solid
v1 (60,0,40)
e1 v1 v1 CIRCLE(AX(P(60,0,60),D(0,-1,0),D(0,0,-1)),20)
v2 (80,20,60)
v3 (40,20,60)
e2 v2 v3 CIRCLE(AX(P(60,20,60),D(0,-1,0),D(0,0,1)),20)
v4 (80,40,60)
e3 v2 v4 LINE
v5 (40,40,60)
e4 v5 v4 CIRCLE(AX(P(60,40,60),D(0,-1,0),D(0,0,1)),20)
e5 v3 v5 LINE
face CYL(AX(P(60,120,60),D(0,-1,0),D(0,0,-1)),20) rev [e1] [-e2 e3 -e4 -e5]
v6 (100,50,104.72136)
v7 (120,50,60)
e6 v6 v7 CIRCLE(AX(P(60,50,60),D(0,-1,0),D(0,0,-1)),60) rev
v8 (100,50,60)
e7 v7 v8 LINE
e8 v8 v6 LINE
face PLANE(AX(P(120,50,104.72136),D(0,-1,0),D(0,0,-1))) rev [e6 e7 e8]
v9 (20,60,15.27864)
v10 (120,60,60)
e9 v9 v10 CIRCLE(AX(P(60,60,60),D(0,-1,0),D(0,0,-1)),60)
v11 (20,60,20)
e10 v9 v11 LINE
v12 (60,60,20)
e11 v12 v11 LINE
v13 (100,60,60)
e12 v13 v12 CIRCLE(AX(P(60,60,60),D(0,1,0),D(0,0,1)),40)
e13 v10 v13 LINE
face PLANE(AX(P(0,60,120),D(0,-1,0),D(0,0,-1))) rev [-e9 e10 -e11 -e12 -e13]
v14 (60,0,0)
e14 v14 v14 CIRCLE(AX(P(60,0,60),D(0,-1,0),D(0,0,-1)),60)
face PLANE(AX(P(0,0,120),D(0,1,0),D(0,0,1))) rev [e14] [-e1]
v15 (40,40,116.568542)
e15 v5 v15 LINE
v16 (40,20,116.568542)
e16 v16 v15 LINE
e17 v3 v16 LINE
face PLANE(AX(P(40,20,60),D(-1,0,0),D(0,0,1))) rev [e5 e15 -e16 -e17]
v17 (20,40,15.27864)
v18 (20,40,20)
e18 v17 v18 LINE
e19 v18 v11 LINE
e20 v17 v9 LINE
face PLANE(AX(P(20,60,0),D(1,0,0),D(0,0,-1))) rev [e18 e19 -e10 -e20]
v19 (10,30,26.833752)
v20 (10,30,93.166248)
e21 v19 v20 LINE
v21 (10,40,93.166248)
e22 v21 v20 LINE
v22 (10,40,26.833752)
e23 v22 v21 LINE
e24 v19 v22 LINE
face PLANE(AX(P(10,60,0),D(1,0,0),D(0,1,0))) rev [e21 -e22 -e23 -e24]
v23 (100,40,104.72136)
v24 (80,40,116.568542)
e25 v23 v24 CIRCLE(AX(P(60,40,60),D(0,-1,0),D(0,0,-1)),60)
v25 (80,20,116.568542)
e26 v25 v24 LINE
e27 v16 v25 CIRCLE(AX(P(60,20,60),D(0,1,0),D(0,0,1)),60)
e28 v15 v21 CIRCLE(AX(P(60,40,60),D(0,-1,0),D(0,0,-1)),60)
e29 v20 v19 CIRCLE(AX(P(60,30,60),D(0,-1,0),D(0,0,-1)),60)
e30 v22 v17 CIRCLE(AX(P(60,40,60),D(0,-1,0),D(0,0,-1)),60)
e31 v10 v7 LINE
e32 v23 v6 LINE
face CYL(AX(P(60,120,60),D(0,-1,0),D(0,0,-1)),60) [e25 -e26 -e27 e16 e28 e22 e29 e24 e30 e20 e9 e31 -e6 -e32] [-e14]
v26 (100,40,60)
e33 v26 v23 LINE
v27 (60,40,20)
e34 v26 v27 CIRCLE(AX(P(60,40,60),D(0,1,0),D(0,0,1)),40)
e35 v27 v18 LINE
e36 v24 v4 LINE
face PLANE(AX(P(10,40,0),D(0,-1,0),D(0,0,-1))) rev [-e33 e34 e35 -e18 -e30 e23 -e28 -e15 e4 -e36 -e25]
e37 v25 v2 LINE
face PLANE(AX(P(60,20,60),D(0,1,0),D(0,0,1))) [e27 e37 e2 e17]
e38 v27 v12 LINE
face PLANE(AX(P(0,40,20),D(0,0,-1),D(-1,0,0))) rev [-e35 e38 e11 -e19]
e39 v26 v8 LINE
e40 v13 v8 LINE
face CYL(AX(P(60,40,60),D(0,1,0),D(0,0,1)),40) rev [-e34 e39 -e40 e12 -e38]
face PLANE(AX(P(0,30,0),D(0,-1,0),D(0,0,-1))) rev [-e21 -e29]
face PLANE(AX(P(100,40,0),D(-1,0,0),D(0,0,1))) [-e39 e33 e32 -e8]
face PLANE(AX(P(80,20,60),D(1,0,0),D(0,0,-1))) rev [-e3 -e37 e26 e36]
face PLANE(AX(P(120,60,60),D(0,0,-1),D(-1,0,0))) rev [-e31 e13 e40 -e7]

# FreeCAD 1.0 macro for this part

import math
import FreeCAD as App
import Part
import Sketcher
from FreeCAD import Vector
Q = App.Units.Quantity


def add_polygon(sketch, points):
    """Adds a closed chain of lines whose ends are joined by coincident constraints."""
    first, n = sketch.GeometryCount, len(points)
    for a, b in zip(points, points[1:] + points[:1]):
        sketch.addGeometry(Part.LineSegment(App.Vector(*a, 0), App.Vector(*b, 0)), False)
    for i in range(n):
        sketch.addConstraint(Sketcher.Constraint("Coincident", first + i, 2, first + (i + 1) % n, 1))

doc = App.newDocument("Part")
body = doc.addObject("PartDesign::Body", "Body")

# Sketch on XY plane
sketch1 = body.newObject("Sketcher::SketchObject", "Sketch")
sketch1.AttachmentSupport = (doc.getObject("XY_Plane"), [""])
sketch1.MapMode = "FlatFace"
add_polygon(sketch1, [(0, 60), (0, 0), (120, 0), (120, 60)])  # lines 0-3
sketch1.addConstraint(Sketcher.Constraint("Vertical", 0))
sketch1.addConstraint(Sketcher.Constraint("Horizontal", 1))
sketch1.addConstraint(Sketcher.Constraint("Vertical", 2))
sketch1.addConstraint(Sketcher.Constraint("Horizontal", 3))
sketch1.addConstraint(Sketcher.Constraint("Coincident", 0, 2, -1, 1))
sketch1.addConstraint(Sketcher.Constraint("DistanceX", 1, 1, 1, 2, Q("120 mm")))
sketch1.addConstraint(Sketcher.Constraint("DistanceY", 0, 2, 0, 1, Q("60 mm")))
pad1 = body.newObject("PartDesign::Pad", "Pad")
pad1.Profile = sketch1
pad1.Length = 120

# Sketch on XY plane
sketch2 = body.newObject("Sketcher::SketchObject", "Sketch001")
sketch2.AttachmentSupport = (doc.getObject("XY_Plane"), [""])
sketch2.MapMode = "FlatFace"
sketch2.AttachmentOffset = App.Placement(Vector(0, 0, 120), App.Rotation())
add_polygon(sketch2, [(0, 60), (0, 30), (10, 30), (10, 60)])  # lines 0-3
sketch2.addConstraint(Sketcher.Constraint("Vertical", 0))
sketch2.addConstraint(Sketcher.Constraint("Horizontal", 1))
sketch2.addConstraint(Sketcher.Constraint("Vertical", 2))
sketch2.addConstraint(Sketcher.Constraint("Horizontal", 3))
sketch2.addConstraint(Sketcher.Constraint("PointOnObject", 0, 2, -2))
sketch2.addConstraint(Sketcher.Constraint("DistanceX", 1, 1, 1, 2, Q("10 mm")))
sketch2.addConstraint(Sketcher.Constraint("DistanceY", 0, 2, 0, 1, Q("30 mm")))
sketch2.addConstraint(Sketcher.Constraint("DistanceY", -1, 1, 0, 2, Q("30 mm")))
pocket1 = body.newObject("PartDesign::Pocket", "Pocket")
pocket1.Profile = sketch2
pocket1.Length = 120

# Sketch on XY plane
sketch3 = body.newObject("Sketcher::SketchObject", "Sketch002")
sketch3.AttachmentSupport = (doc.getObject("XY_Plane"), [""])
sketch3.MapMode = "FlatFace"
sketch3.AttachmentOffset = App.Placement(Vector(0, 0, 120), App.Rotation())
add_polygon(sketch3, [(10, 60), (10, 40), (20, 40), (20, 60)])  # lines 0-3
sketch3.addConstraint(Sketcher.Constraint("Vertical", 0))
sketch3.addConstraint(Sketcher.Constraint("Horizontal", 1))
sketch3.addConstraint(Sketcher.Constraint("Vertical", 2))
sketch3.addConstraint(Sketcher.Constraint("Horizontal", 3))
sketch3.addConstraint(Sketcher.Constraint("DistanceX", 1, 1, 1, 2, Q("10 mm")))
sketch3.addConstraint(Sketcher.Constraint("DistanceY", 0, 2, 0, 1, Q("20 mm")))
sketch3.addConstraint(Sketcher.Constraint("DistanceX", -1, 1, 0, 2, Q("10 mm")))
sketch3.addConstraint(Sketcher.Constraint("DistanceY", -1, 1, 0, 2, Q("40 mm")))
pocket2 = body.newObject("PartDesign::Pocket", "Pocket001")
pocket2.Profile = sketch3
pocket2.Length = 120

# Sketch on XZ plane
sketch4 = body.newObject("Sketcher::SketchObject", "Sketch003")
sketch4.AttachmentSupport = (doc.getObject("XZ_Plane"), [""])
sketch4.MapMode = "FlatFace"
sketch4.addGeometry(Part.LineSegment(Vector(60, 120, 0), Vector(0, 120, 0)), False)
sketch4.addGeometry(Part.LineSegment(Vector(0, 120, 0), Vector(0, 60, 0)), False)
sketch4.addGeometry(Part.ArcOfCircle(Part.Circle(Vector(60, 60, 0), Vector(0, 0, 1), 60), math.radians(90), math.radians(180)), False)
sketch4.addGeometry(Part.LineSegment(Vector(120, 120, 0), Vector(60, 120, 0)), False)
sketch4.addGeometry(Part.ArcOfCircle(Part.Circle(Vector(60, 60, 0), Vector(0, 0, 1), 60), math.radians(0), math.radians(90)), False)
sketch4.addGeometry(Part.LineSegment(Vector(120, 60, 0), Vector(120, 120, 0)), False)
sketch4.addGeometry(Part.ArcOfCircle(Part.Circle(Vector(60, 60, 0), Vector(0, 0, 1), 60), math.radians(-90), math.radians(0)), False)
sketch4.addGeometry(Part.LineSegment(Vector(60, 0, 0), Vector(120, 0, 0)), False)
sketch4.addGeometry(Part.LineSegment(Vector(120, 0, 0), Vector(120, 60, 0)), False)
sketch4.addGeometry(Part.ArcOfCircle(Part.Circle(Vector(60, 60, 0), Vector(0, 0, 1), 60), math.radians(-180), math.radians(-90)), False)
sketch4.addGeometry(Part.LineSegment(Vector(0, 60, 0), Vector(0, 0, 0)), False)
sketch4.addGeometry(Part.LineSegment(Vector(0, 0, 0), Vector(60, 0, 0)), False)
sketch4.addConstraint(Sketcher.Constraint("Coincident", 0, 2, 1, 1))
sketch4.addConstraint(Sketcher.Constraint("Tangent", 1, 2, 2, 2))
sketch4.addConstraint(Sketcher.Constraint("Tangent", 2, 1, 0, 1))
sketch4.addConstraint(Sketcher.Constraint("Tangent", 3, 2, 4, 2))
sketch4.addConstraint(Sketcher.Constraint("Tangent", 4, 1, 5, 1))
sketch4.addConstraint(Sketcher.Constraint("Coincident", 5, 2, 3, 1))
sketch4.addConstraint(Sketcher.Constraint("Tangent", 6, 1, 7, 1))
sketch4.addConstraint(Sketcher.Constraint("Coincident", 7, 2, 8, 1))
sketch4.addConstraint(Sketcher.Constraint("Tangent", 8, 2, 6, 2))
sketch4.addConstraint(Sketcher.Constraint("Tangent", 9, 1, 10, 1))
sketch4.addConstraint(Sketcher.Constraint("Coincident", 10, 2, 11, 1))
sketch4.addConstraint(Sketcher.Constraint("Tangent", 11, 2, 9, 2))
sketch4.addConstraint(Sketcher.Constraint("Horizontal", 0))
sketch4.addConstraint(Sketcher.Constraint("Vertical", 1))
sketch4.addConstraint(Sketcher.Constraint("Horizontal", 3))
sketch4.addConstraint(Sketcher.Constraint("Vertical", 5))
sketch4.addConstraint(Sketcher.Constraint("Horizontal", 7))
sketch4.addConstraint(Sketcher.Constraint("Vertical", 8))
sketch4.addConstraint(Sketcher.Constraint("Vertical", 10))
sketch4.addConstraint(Sketcher.Constraint("Horizontal", 11))
sketch4.addConstraint(Sketcher.Constraint("Coincident", 10, 2, -1, 1))
sketch4.addConstraint(Sketcher.Constraint("Coincident", 4, 3, 2, 3))
sketch4.addConstraint(Sketcher.Constraint("Coincident", 6, 3, 2, 3))
sketch4.addConstraint(Sketcher.Constraint("Coincident", 9, 3, 2, 3))
sketch4.addConstraint(Sketcher.Constraint("Equal", 2, 4))
sketch4.addConstraint(Sketcher.Constraint("Equal", 4, 6))
sketch4.addConstraint(Sketcher.Constraint("Equal", 6, 9))
sketch4.addConstraint(Sketcher.Constraint("Radius", 2, Q("60 mm")))
pocket3 = body.newObject("PartDesign::Pocket", "Pocket002")
pocket3.Profile = sketch4
pocket3.Length = 120

# Sketch on XZ plane
sketch5 = body.newObject("Sketcher::SketchObject", "Sketch004")
sketch5.AttachmentSupport = (doc.getObject("XZ_Plane"), [""])
sketch5.MapMode = "FlatFace"
sketch5.addGeometry(Part.Circle(Vector(60, 60, 0), Vector(0, 0, 1), 20), False)
sketch5.addConstraint(Sketcher.Constraint("Diameter", 0, Q("40 mm")))
sketch5.addConstraint(Sketcher.Constraint("DistanceX", -1, 1, 0, 3, Q("60 mm")))
sketch5.addConstraint(Sketcher.Constraint("DistanceY", -1, 1, 0, 3, Q("60 mm")))
pocket4 = body.newObject("PartDesign::Pocket", "Pocket003")
pocket4.Profile = sketch5
pocket4.Length = 120

# Sketch on XZ plane
sketch6 = body.newObject("Sketcher::SketchObject", "Sketch005")
sketch6.AttachmentSupport = (doc.getObject("XZ_Plane"), [""])
sketch6.MapMode = "FlatFace"
sketch6.AttachmentOffset = App.Placement(Vector(0, 0, -60), App.Rotation())
sketch6.addGeometry(Part.LineSegment(Vector(40, 60, 0), Vector(40, 116.568542, 0)), False)
sketch6.addGeometry(Part.ArcOfCircle(Part.Circle(Vector(60, 60, 0), Vector(0, 0, 1), 60), math.radians(70.528779), math.radians(109.471221)), False)
sketch6.addGeometry(Part.LineSegment(Vector(80, 116.568542, 0), Vector(80, 60, 0)), False)
sketch6.addGeometry(Part.ArcOfCircle(Part.Circle(Vector(60, 60, 0), Vector(0, 0, 1), 20), math.radians(0), math.radians(180)), False)
sketch6.addConstraint(Sketcher.Constraint("Coincident", 0, 2, 1, 2))
sketch6.addConstraint(Sketcher.Constraint("Coincident", 1, 1, 2, 1))
sketch6.addConstraint(Sketcher.Constraint("Tangent", 2, 2, 3, 1))
sketch6.addConstraint(Sketcher.Constraint("Tangent", 3, 2, 0, 1))
sketch6.addConstraint(Sketcher.Constraint("Vertical", 0))
sketch6.addConstraint(Sketcher.Constraint("Vertical", 2))
sketch6.addConstraint(Sketcher.Constraint("Coincident", 3, 3, 1, 3))
sketch6.addConstraint(Sketcher.Constraint("Radius", 1, Q("60 mm")))
sketch6.addConstraint(Sketcher.Constraint("Radius", 3, Q("20 mm")))
sketch6.addConstraint(Sketcher.Constraint("DistanceX", -1, 1, 1, 3, Q("60 mm")))
sketch6.addConstraint(Sketcher.Constraint("DistanceY", -1, 1, 1, 3, Q("60 mm")))
pocket5 = body.newObject("PartDesign::Pocket", "Pocket004")
pocket5.Profile = sketch6
pocket5.Length = 20
pocket5.Reversed = True

# Sketch on XZ plane
sketch7 = body.newObject("Sketcher::SketchObject", "Sketch006")
sketch7.AttachmentSupport = (doc.getObject("XZ_Plane"), [""])
sketch7.MapMode = "FlatFace"
sketch7.AttachmentOffset = App.Placement(Vector(0, 0, -60), App.Rotation())
sketch7.addGeometry(Part.ArcOfCircle(Part.Circle(Vector(60, 60, 0), Vector(0, 0, 1), 40), math.radians(-90), math.radians(0)), False)
sketch7.addGeometry(Part.LineSegment(Vector(60, 20, 0), Vector(20, 20, 0)), False)
sketch7.addGeometry(Part.LineSegment(Vector(20, 20, 0), Vector(20, 104.72136, 0)), False)
sketch7.addGeometry(Part.ArcOfCircle(Part.Circle(Vector(60, 60, 0), Vector(0, 0, 1), 60), math.radians(109.471221), math.radians(131.810315)), False)
sketch7.addGeometry(Part.LineSegment(Vector(40, 116.568542, 0), Vector(40, 60, 0)), False)
sketch7.addGeometry(Part.ArcOfCircle(Part.Circle(Vector(60, 60, 0), Vector(0, 0, 1), 20), math.radians(180), math.radians(360)), False)
sketch7.addGeometry(Part.LineSegment(Vector(80, 60, 0), Vector(80, 116.568542, 0)), False)
sketch7.addGeometry(Part.ArcOfCircle(Part.Circle(Vector(60, 60, 0), Vector(0, 0, 1), 60), math.radians(48.189685), math.radians(70.528779)), False)
sketch7.addGeometry(Part.LineSegment(Vector(100, 104.72136, 0), Vector(100, 60, 0)), False)
sketch7.addConstraint(Sketcher.Constraint("Tangent", 0, 1, 1, 1))
sketch7.addConstraint(Sketcher.Constraint("Coincident", 1, 2, 2, 1))
sketch7.addConstraint(Sketcher.Constraint("Coincident", 2, 2, 3, 2))
sketch7.addConstraint(Sketcher.Constraint("Coincident", 3, 1, 4, 1))
sketch7.addConstraint(Sketcher.Constraint("Tangent", 4, 2, 5, 1))
sketch7.addConstraint(Sketcher.Constraint("Tangent", 5, 2, 6, 1))
sketch7.addConstraint(Sketcher.Constraint("Coincident", 6, 2, 7, 2))
sketch7.addConstraint(Sketcher.Constraint("Coincident", 7, 1, 8, 1))
sketch7.addConstraint(Sketcher.Constraint("Tangent", 8, 2, 0, 2))
sketch7.addConstraint(Sketcher.Constraint("Horizontal", 1))
sketch7.addConstraint(Sketcher.Constraint("Vertical", 2))
sketch7.addConstraint(Sketcher.Constraint("Vertical", 4))
sketch7.addConstraint(Sketcher.Constraint("Vertical", 6))
sketch7.addConstraint(Sketcher.Constraint("Vertical", 8))
sketch7.addConstraint(Sketcher.Constraint("Coincident", 3, 3, 0, 3))
sketch7.addConstraint(Sketcher.Constraint("Coincident", 5, 3, 0, 3))
sketch7.addConstraint(Sketcher.Constraint("Coincident", 7, 3, 0, 3))
sketch7.addConstraint(Sketcher.Constraint("Equal", 3, 7))
sketch7.addConstraint(Sketcher.Constraint("Horizontal", 2, 2, 7, 1))
sketch7.addConstraint(Sketcher.Constraint("Radius", 0, Q("40 mm")))
sketch7.addConstraint(Sketcher.Constraint("Radius", 3, Q("60 mm")))
sketch7.addConstraint(Sketcher.Constraint("Radius", 5, Q("20 mm")))
sketch7.addConstraint(Sketcher.Constraint("DistanceX", -1, 1, 0, 3, Q("60 mm")))
sketch7.addConstraint(Sketcher.Constraint("DistanceY", -1, 1, 0, 3, Q("60 mm")))
pocket6 = body.newObject("PartDesign::Pocket", "Pocket005")
pocket6.Profile = sketch7
pocket6.Length = 20
pocket6.Reversed = True

# Sketch on YZ plane
sketch8 = body.newObject("Sketcher::SketchObject", "Sketch007")
sketch8.AttachmentSupport = (doc.getObject("YZ_Plane"), [""])
sketch8.MapMode = "FlatFace"
sketch8.AttachmentOffset = App.Placement(Vector(0, 0, 100), App.Rotation())
add_polygon(sketch8, [(60, 89.72136), (50, 89.72136), (50, 104.72136), (60, 104.72136)])  # lines 0-3
sketch8.addConstraint(Sketcher.Constraint("Horizontal", 0))
sketch8.addConstraint(Sketcher.Constraint("Vertical", 1))
sketch8.addConstraint(Sketcher.Constraint("Horizontal", 2))
sketch8.addConstraint(Sketcher.Constraint("Vertical", 3))
sketch8.addConstraint(Sketcher.Constraint("DistanceX", 0, 2, 0, 1, Q("10 mm")))
sketch8.addConstraint(Sketcher.Constraint("DistanceY", 1, 1, 1, 2, Q("15 mm")))
sketch8.addConstraint(Sketcher.Constraint("DistanceX", -1, 1, 0, 2, Q("50 mm")))
sketch8.addConstraint(Sketcher.Constraint("DistanceY", -1, 1, 0, 2, Q("89.72136 mm")))
pocket7 = body.newObject("PartDesign::Pocket", "Pocket006")
pocket7.Profile = sketch8
pocket7.Length = 20
pocket7.Reversed = True

# Sketch on YZ plane
sketch9 = body.newObject("Sketcher::SketchObject", "Sketch008")
sketch9.AttachmentSupport = (doc.getObject("YZ_Plane"), [""])
sketch9.MapMode = "FlatFace"
sketch9.AttachmentOffset = App.Placement(Vector(0, 0, 100), App.Rotation())
add_polygon(sketch9, [(60, 60), (50, 60), (50, 89.72136), (60, 89.72136)])  # lines 0-3
sketch9.addConstraint(Sketcher.Constraint("Horizontal", 0))
sketch9.addConstraint(Sketcher.Constraint("Vertical", 1))
sketch9.addConstraint(Sketcher.Constraint("Horizontal", 2))
sketch9.addConstraint(Sketcher.Constraint("Vertical", 3))
sketch9.addConstraint(Sketcher.Constraint("DistanceX", 0, 2, 0, 1, Q("10 mm")))
sketch9.addConstraint(Sketcher.Constraint("DistanceX", -1, 1, 0, 2, Q("50 mm")))
sketch9.addConstraint(Sketcher.Constraint("DistanceY", -1, 1, 0, 2, Q("60 mm")))
sketch9.addConstraint(Sketcher.Constraint("DistanceY", 1, 1, 1, 2, Q("29.72136 mm")))
pocket8 = body.newObject("PartDesign::Pocket", "Pocket007")
pocket8.Profile = sketch9
pocket8.Length = 20
pocket8.Reversed = True

# Sketch on XZ plane
sketch10 = body.newObject("Sketcher::SketchObject", "Sketch009")
sketch10.AttachmentSupport = (doc.getObject("XZ_Plane"), [""])
sketch10.MapMode = "FlatFace"
sketch10.AttachmentOffset = App.Placement(Vector(0, 0, -40), App.Rotation())
sketch10.addGeometry(Part.LineSegment(Vector(40, 60, 0), Vector(40, 116.568542, 0)), False)
sketch10.addGeometry(Part.ArcOfCircle(Part.Circle(Vector(60, 60, 0), Vector(0, 0, 1), 60), math.radians(70.528779), math.radians(109.471221)), False)
sketch10.addGeometry(Part.LineSegment(Vector(80, 116.568542, 0), Vector(80, 60, 0)), False)
sketch10.addGeometry(Part.ArcOfCircle(Part.Circle(Vector(60, 60, 0), Vector(0, 0, 1), 20), math.radians(0), math.radians(180)), False)
sketch10.addConstraint(Sketcher.Constraint("Coincident", 0, 2, 1, 2))
sketch10.addConstraint(Sketcher.Constraint("Coincident", 1, 1, 2, 1))
sketch10.addConstraint(Sketcher.Constraint("Tangent", 2, 2, 3, 1))
sketch10.addConstraint(Sketcher.Constraint("Tangent", 3, 2, 0, 1))
sketch10.addConstraint(Sketcher.Constraint("Vertical", 0))
sketch10.addConstraint(Sketcher.Constraint("Vertical", 2))
sketch10.addConstraint(Sketcher.Constraint("Coincident", 3, 3, 1, 3))
sketch10.addConstraint(Sketcher.Constraint("Radius", 1, Q("60 mm")))
sketch10.addConstraint(Sketcher.Constraint("Radius", 3, Q("20 mm")))
sketch10.addConstraint(Sketcher.Constraint("DistanceX", -1, 1, 1, 3, Q("60 mm")))
sketch10.addConstraint(Sketcher.Constraint("DistanceY", -1, 1, 1, 3, Q("60 mm")))
pocket9 = body.newObject("PartDesign::Pocket", "Pocket008")
pocket9.Profile = sketch10
pocket9.Length = 20
pocket9.Reversed = True

# Sketch on YZ plane
sketch11 = body.newObject("Sketcher::SketchObject", "Sketch010")
sketch11.AttachmentSupport = (doc.getObject("YZ_Plane"), [""])
sketch11.MapMode = "FlatFace"
sketch11.AttachmentOffset = App.Placement(Vector(0, 0, 40), App.Rotation())
add_polygon(sketch11, [(40, 80), (20, 80), (20, 40), (40, 40)])  # lines 0-3
sketch11.addConstraint(Sketcher.Constraint("Horizontal", 0))
sketch11.addConstraint(Sketcher.Constraint("Vertical", 1))
sketch11.addConstraint(Sketcher.Constraint("Horizontal", 2))
sketch11.addConstraint(Sketcher.Constraint("Vertical", 3))
sketch11.addConstraint(Sketcher.Constraint("DistanceX", 0, 2, 0, 1, Q("20 mm")))
sketch11.addConstraint(Sketcher.Constraint("DistanceY", 1, 2, 1, 1, Q("40 mm")))
sketch11.addConstraint(Sketcher.Constraint("DistanceX", -1, 1, 0, 2, Q("20 mm")))
sketch11.addConstraint(Sketcher.Constraint("DistanceY", -1, 1, 0, 2, Q("80 mm")))
pocket10 = body.newObject("PartDesign::Pocket", "Pocket009")
pocket10.Profile = sketch11
pocket10.Length = 20

# Sketch on XZ plane
sketch12 = body.newObject("Sketcher::SketchObject", "Sketch011")
sketch12.AttachmentSupport = (doc.getObject("XZ_Plane"), [""])
sketch12.MapMode = "FlatFace"
sketch12.AttachmentOffset = App.Placement(Vector(0, 0, -40), App.Rotation())
add_polygon(sketch12, [(20, 40), (20, 80), (40, 80), (40, 40)])  # lines 0-3
sketch12.addConstraint(Sketcher.Constraint("Vertical", 0))
sketch12.addConstraint(Sketcher.Constraint("Horizontal", 1))
sketch12.addConstraint(Sketcher.Constraint("Vertical", 2))
sketch12.addConstraint(Sketcher.Constraint("Horizontal", 3))
sketch12.addConstraint(Sketcher.Constraint("DistanceX", 1, 1, 1, 2, Q("20 mm")))
sketch12.addConstraint(Sketcher.Constraint("DistanceY", 0, 1, 0, 2, Q("40 mm")))
sketch12.addConstraint(Sketcher.Constraint("DistanceX", -1, 1, 0, 2, Q("20 mm")))
sketch12.addConstraint(Sketcher.Constraint("DistanceY", -1, 1, 0, 2, Q("80 mm")))
pad2 = body.newObject("PartDesign::Pad", "Pad001")
pad2.Profile = sketch12
pad2.Length = 20

doc.recompute()
